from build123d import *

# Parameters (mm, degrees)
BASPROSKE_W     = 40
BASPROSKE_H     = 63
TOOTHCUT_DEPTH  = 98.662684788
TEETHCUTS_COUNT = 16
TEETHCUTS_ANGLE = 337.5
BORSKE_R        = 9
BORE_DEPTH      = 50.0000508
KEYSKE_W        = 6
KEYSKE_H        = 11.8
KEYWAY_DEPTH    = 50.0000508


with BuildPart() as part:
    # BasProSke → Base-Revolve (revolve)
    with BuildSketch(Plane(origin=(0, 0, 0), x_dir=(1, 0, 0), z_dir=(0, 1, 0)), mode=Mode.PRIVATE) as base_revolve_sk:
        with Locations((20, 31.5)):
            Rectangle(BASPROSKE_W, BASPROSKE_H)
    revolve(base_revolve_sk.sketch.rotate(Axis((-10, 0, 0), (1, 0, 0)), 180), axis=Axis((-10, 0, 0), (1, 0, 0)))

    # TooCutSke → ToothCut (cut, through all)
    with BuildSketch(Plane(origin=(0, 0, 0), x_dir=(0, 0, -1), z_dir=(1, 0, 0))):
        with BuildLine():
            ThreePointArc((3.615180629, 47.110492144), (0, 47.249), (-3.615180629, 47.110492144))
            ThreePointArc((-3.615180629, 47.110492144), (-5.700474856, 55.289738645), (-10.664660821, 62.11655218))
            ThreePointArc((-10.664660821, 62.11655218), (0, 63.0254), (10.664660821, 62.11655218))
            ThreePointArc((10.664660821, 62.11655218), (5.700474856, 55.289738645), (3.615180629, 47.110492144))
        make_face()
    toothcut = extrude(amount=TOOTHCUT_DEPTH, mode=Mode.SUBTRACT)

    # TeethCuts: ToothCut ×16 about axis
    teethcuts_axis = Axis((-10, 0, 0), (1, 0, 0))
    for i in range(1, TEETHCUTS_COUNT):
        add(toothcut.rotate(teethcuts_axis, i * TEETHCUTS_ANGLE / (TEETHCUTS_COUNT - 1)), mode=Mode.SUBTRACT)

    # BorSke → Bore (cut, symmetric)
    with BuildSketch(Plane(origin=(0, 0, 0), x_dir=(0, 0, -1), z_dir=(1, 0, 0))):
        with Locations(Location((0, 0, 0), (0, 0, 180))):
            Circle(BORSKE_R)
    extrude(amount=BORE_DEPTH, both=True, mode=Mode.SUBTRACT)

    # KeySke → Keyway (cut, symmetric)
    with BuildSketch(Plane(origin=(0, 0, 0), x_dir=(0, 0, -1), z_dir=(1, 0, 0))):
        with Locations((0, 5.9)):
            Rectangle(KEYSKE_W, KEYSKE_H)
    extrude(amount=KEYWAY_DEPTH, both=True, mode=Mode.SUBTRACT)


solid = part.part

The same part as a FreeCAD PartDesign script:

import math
import FreeCAD as App
import Part
import Sketcher
from FreeCAD import Vector
Q = App.Units.Quantity

doc = App.newDocument("Part")
body = doc.addObject("PartDesign::Body", "Body")

sketch1 = doc.addObject("Sketcher::SketchObject", "Sketch")
body.addObject(sketch1)
sketch1.AttachmentSupport = (doc.XZ_Plane, [""])
sketch1.MapMode = "FlatFace"
sketch1.addGeometry([
    Part.LineSegment(Vector(0, -63, 0), Vector(0, 0, 0)),
    Part.LineSegment(Vector(0, 0, 0), Vector(40, 0, 0)),
    Part.LineSegment(Vector(40, 0, 0), Vector(40, -63, 0)),
    Part.LineSegment(Vector(40, -63, 0), Vector(0, -63, 0)),
], False)
sketch1.addConstraint([
    Sketcher.Constraint("Coincident", 0, 2, 1, 1),
    Sketcher.Constraint("Coincident", 1, 2, 2, 1),
    Sketcher.Constraint("Coincident", 2, 2, 3, 1),
    Sketcher.Constraint("Coincident", 3, 2, 0, 1),
    Sketcher.Constraint("Vertical", 0),
    Sketcher.Constraint("Horizontal", 1),
    Sketcher.Constraint("Vertical", 2),
    Sketcher.Constraint("Horizontal", 3),
    Sketcher.Constraint("Coincident", 0, 2, -1, 1),
    Sketcher.Constraint("DistanceX", 1, 1, 1, 2, Q("40 mm")),
    Sketcher.Constraint("DistanceY", 0, 1, 0, 2, Q("63 mm")),
])
revolution = doc.addObject("PartDesign::Revolution", "Revolution")
body.addObject(revolution)
revolution.Profile = sketch1
revolution.ReferenceAxis = (sketch1, ["H_Axis"])
revolution.Angle = 360

sketch2 = doc.addObject("Sketcher::SketchObject", "Sketch001")
body.addObject(sketch2)
sketch2.AttachmentSupport = (doc.YZ_Plane, [""])
sketch2.MapMode = "FlatFace"
sketch2.addGeometry([
    Part.ArcOfCircle(Part.Circle(Vector(0, 0, 0), Vector(0, 0, 1), 47), math.radians(-4.39), math.radians(4.39)),
    Part.ArcOfCircle(Part.Circle(Vector(46, -26, 0), Vector(0, 0, 1), 22), math.radians(43), math.radians(87)),
    Part.ArcOfCircle(Part.Circle(Vector(0, 0, 0), Vector(0, 0, 1), 63), math.radians(-9.74), math.radians(9.74)),
    Part.ArcOfCircle(Part.Circle(Vector(46, 26, 0), Vector(0, 0, 1), 22), math.radians(-87), math.radians(-43)),
], False)
sketch2.addConstraint([
    Sketcher.Constraint("Coincident", 0, 1, 1, 2),
    Sketcher.Constraint("Coincident", 1, 1, 2, 1),
    Sketcher.Constraint("Coincident", 2, 2, 3, 2),
    Sketcher.Constraint("Coincident", 3, 1, 0, 2),
    Sketcher.Constraint("Coincident", 0, 3, -1, 1),
    Sketcher.Constraint("Coincident", 2, 3, -1, 1),
    Sketcher.Constraint("Equal", 1, 3),
    Sketcher.Constraint("Symmetric", 1, 3, 3, 3, -1),
    Sketcher.Constraint("Radius", 1, Q("22.4 mm")),
    Sketcher.Constraint("Radius", 0, Q("47.249 mm")),
    Sketcher.Constraint("Radius", 2, Q("63.0254 mm")),
    Sketcher.Constraint("DistanceY", 0, 1, -1, 1, Q("3.615181 mm")),
    Sketcher.Constraint("DistanceY", 1, 1, -1, 1, Q("10.664661 mm")),
])
pocket1 = doc.addObject("PartDesign::Pocket", "Pocket")
body.addObject(pocket1)
pocket1.Profile = sketch2
pocket1.Type = "ThroughAll"
pocket1.Reversed = True
doc.recompute()

polarpattern = doc.addObject("PartDesign::PolarPattern", "PolarPattern")
body.addObject(polarpattern)
polarpattern.Originals = [pocket1]
polarpattern.Axis = (doc.X_Axis, [""])
polarpattern.Angle = 360
polarpattern.Occurrences = 16
body.Tip = polarpattern

sketch3 = doc.addObject("Sketcher::SketchObject", "Sketch002")
body.addObject(sketch3)
sketch3.AttachmentSupport = (doc.YZ_Plane, [""])
sketch3.MapMode = "FlatFace"
sketch3.addGeometry(Part.Circle(Vector(0, 0, 0), Vector(0, 0, 1), 9), False)
sketch3.addConstraint([
    Sketcher.Constraint("Coincident", 0, 3, -1, 1),
    Sketcher.Constraint("Diameter", 0, Q("18 mm")),
])
pocket2 = doc.addObject("PartDesign::Pocket", "Pocket001")
body.addObject(pocket2)
pocket2.Profile = sketch3
pocket2.Length = 100.000102
pocket2.Midplane = True

sketch4 = doc.addObject("Sketcher::SketchObject", "Sketch003")
body.addObject(sketch4)
sketch4.AttachmentSupport = (doc.YZ_Plane, [""])
sketch4.MapMode = "FlatFace"
sketch4.addGeometry([
    Part.LineSegment(Vector(12, 3, 0), Vector(0, 3, 0)),
    Part.LineSegment(Vector(0, 3, 0), Vector(0, -3, 0)),
    Part.LineSegment(Vector(0, -3, 0), Vector(12, -3, 0)),
    Part.LineSegment(Vector(12, -3, 0), Vector(12, 3, 0)),
], False)
sketch4.addConstraint([
    Sketcher.Constraint("Coincident", 0, 2, 1, 1),
    Sketcher.Constraint("Coincident", 1, 2, 2, 1),
    Sketcher.Constraint("Coincident", 2, 2, 3, 1),
    Sketcher.Constraint("Coincident", 3, 2, 0, 1),
    Sketcher.Constraint("Horizontal", 0),
    Sketcher.Constraint("Vertical", 1),
    Sketcher.Constraint("Horizontal", 2),
    Sketcher.Constraint("Vertical", 3),
    Sketcher.Constraint("Symmetric", 0, 2, 1, 2, -1, 1),
    Sketcher.Constraint("DistanceY", 1, 2, 1, 1, Q("6 mm")),
    Sketcher.Constraint("DistanceX", 0, 2, 0, 1, Q("11.8 mm")),
])
pocket3 = doc.addObject("PartDesign::Pocket", "Pocket002")
body.addObject(pocket3)
pocket3.Profile = sketch4
pocket3.Length = 100.000102
pocket3.Midplane = True

doc.recompute()
